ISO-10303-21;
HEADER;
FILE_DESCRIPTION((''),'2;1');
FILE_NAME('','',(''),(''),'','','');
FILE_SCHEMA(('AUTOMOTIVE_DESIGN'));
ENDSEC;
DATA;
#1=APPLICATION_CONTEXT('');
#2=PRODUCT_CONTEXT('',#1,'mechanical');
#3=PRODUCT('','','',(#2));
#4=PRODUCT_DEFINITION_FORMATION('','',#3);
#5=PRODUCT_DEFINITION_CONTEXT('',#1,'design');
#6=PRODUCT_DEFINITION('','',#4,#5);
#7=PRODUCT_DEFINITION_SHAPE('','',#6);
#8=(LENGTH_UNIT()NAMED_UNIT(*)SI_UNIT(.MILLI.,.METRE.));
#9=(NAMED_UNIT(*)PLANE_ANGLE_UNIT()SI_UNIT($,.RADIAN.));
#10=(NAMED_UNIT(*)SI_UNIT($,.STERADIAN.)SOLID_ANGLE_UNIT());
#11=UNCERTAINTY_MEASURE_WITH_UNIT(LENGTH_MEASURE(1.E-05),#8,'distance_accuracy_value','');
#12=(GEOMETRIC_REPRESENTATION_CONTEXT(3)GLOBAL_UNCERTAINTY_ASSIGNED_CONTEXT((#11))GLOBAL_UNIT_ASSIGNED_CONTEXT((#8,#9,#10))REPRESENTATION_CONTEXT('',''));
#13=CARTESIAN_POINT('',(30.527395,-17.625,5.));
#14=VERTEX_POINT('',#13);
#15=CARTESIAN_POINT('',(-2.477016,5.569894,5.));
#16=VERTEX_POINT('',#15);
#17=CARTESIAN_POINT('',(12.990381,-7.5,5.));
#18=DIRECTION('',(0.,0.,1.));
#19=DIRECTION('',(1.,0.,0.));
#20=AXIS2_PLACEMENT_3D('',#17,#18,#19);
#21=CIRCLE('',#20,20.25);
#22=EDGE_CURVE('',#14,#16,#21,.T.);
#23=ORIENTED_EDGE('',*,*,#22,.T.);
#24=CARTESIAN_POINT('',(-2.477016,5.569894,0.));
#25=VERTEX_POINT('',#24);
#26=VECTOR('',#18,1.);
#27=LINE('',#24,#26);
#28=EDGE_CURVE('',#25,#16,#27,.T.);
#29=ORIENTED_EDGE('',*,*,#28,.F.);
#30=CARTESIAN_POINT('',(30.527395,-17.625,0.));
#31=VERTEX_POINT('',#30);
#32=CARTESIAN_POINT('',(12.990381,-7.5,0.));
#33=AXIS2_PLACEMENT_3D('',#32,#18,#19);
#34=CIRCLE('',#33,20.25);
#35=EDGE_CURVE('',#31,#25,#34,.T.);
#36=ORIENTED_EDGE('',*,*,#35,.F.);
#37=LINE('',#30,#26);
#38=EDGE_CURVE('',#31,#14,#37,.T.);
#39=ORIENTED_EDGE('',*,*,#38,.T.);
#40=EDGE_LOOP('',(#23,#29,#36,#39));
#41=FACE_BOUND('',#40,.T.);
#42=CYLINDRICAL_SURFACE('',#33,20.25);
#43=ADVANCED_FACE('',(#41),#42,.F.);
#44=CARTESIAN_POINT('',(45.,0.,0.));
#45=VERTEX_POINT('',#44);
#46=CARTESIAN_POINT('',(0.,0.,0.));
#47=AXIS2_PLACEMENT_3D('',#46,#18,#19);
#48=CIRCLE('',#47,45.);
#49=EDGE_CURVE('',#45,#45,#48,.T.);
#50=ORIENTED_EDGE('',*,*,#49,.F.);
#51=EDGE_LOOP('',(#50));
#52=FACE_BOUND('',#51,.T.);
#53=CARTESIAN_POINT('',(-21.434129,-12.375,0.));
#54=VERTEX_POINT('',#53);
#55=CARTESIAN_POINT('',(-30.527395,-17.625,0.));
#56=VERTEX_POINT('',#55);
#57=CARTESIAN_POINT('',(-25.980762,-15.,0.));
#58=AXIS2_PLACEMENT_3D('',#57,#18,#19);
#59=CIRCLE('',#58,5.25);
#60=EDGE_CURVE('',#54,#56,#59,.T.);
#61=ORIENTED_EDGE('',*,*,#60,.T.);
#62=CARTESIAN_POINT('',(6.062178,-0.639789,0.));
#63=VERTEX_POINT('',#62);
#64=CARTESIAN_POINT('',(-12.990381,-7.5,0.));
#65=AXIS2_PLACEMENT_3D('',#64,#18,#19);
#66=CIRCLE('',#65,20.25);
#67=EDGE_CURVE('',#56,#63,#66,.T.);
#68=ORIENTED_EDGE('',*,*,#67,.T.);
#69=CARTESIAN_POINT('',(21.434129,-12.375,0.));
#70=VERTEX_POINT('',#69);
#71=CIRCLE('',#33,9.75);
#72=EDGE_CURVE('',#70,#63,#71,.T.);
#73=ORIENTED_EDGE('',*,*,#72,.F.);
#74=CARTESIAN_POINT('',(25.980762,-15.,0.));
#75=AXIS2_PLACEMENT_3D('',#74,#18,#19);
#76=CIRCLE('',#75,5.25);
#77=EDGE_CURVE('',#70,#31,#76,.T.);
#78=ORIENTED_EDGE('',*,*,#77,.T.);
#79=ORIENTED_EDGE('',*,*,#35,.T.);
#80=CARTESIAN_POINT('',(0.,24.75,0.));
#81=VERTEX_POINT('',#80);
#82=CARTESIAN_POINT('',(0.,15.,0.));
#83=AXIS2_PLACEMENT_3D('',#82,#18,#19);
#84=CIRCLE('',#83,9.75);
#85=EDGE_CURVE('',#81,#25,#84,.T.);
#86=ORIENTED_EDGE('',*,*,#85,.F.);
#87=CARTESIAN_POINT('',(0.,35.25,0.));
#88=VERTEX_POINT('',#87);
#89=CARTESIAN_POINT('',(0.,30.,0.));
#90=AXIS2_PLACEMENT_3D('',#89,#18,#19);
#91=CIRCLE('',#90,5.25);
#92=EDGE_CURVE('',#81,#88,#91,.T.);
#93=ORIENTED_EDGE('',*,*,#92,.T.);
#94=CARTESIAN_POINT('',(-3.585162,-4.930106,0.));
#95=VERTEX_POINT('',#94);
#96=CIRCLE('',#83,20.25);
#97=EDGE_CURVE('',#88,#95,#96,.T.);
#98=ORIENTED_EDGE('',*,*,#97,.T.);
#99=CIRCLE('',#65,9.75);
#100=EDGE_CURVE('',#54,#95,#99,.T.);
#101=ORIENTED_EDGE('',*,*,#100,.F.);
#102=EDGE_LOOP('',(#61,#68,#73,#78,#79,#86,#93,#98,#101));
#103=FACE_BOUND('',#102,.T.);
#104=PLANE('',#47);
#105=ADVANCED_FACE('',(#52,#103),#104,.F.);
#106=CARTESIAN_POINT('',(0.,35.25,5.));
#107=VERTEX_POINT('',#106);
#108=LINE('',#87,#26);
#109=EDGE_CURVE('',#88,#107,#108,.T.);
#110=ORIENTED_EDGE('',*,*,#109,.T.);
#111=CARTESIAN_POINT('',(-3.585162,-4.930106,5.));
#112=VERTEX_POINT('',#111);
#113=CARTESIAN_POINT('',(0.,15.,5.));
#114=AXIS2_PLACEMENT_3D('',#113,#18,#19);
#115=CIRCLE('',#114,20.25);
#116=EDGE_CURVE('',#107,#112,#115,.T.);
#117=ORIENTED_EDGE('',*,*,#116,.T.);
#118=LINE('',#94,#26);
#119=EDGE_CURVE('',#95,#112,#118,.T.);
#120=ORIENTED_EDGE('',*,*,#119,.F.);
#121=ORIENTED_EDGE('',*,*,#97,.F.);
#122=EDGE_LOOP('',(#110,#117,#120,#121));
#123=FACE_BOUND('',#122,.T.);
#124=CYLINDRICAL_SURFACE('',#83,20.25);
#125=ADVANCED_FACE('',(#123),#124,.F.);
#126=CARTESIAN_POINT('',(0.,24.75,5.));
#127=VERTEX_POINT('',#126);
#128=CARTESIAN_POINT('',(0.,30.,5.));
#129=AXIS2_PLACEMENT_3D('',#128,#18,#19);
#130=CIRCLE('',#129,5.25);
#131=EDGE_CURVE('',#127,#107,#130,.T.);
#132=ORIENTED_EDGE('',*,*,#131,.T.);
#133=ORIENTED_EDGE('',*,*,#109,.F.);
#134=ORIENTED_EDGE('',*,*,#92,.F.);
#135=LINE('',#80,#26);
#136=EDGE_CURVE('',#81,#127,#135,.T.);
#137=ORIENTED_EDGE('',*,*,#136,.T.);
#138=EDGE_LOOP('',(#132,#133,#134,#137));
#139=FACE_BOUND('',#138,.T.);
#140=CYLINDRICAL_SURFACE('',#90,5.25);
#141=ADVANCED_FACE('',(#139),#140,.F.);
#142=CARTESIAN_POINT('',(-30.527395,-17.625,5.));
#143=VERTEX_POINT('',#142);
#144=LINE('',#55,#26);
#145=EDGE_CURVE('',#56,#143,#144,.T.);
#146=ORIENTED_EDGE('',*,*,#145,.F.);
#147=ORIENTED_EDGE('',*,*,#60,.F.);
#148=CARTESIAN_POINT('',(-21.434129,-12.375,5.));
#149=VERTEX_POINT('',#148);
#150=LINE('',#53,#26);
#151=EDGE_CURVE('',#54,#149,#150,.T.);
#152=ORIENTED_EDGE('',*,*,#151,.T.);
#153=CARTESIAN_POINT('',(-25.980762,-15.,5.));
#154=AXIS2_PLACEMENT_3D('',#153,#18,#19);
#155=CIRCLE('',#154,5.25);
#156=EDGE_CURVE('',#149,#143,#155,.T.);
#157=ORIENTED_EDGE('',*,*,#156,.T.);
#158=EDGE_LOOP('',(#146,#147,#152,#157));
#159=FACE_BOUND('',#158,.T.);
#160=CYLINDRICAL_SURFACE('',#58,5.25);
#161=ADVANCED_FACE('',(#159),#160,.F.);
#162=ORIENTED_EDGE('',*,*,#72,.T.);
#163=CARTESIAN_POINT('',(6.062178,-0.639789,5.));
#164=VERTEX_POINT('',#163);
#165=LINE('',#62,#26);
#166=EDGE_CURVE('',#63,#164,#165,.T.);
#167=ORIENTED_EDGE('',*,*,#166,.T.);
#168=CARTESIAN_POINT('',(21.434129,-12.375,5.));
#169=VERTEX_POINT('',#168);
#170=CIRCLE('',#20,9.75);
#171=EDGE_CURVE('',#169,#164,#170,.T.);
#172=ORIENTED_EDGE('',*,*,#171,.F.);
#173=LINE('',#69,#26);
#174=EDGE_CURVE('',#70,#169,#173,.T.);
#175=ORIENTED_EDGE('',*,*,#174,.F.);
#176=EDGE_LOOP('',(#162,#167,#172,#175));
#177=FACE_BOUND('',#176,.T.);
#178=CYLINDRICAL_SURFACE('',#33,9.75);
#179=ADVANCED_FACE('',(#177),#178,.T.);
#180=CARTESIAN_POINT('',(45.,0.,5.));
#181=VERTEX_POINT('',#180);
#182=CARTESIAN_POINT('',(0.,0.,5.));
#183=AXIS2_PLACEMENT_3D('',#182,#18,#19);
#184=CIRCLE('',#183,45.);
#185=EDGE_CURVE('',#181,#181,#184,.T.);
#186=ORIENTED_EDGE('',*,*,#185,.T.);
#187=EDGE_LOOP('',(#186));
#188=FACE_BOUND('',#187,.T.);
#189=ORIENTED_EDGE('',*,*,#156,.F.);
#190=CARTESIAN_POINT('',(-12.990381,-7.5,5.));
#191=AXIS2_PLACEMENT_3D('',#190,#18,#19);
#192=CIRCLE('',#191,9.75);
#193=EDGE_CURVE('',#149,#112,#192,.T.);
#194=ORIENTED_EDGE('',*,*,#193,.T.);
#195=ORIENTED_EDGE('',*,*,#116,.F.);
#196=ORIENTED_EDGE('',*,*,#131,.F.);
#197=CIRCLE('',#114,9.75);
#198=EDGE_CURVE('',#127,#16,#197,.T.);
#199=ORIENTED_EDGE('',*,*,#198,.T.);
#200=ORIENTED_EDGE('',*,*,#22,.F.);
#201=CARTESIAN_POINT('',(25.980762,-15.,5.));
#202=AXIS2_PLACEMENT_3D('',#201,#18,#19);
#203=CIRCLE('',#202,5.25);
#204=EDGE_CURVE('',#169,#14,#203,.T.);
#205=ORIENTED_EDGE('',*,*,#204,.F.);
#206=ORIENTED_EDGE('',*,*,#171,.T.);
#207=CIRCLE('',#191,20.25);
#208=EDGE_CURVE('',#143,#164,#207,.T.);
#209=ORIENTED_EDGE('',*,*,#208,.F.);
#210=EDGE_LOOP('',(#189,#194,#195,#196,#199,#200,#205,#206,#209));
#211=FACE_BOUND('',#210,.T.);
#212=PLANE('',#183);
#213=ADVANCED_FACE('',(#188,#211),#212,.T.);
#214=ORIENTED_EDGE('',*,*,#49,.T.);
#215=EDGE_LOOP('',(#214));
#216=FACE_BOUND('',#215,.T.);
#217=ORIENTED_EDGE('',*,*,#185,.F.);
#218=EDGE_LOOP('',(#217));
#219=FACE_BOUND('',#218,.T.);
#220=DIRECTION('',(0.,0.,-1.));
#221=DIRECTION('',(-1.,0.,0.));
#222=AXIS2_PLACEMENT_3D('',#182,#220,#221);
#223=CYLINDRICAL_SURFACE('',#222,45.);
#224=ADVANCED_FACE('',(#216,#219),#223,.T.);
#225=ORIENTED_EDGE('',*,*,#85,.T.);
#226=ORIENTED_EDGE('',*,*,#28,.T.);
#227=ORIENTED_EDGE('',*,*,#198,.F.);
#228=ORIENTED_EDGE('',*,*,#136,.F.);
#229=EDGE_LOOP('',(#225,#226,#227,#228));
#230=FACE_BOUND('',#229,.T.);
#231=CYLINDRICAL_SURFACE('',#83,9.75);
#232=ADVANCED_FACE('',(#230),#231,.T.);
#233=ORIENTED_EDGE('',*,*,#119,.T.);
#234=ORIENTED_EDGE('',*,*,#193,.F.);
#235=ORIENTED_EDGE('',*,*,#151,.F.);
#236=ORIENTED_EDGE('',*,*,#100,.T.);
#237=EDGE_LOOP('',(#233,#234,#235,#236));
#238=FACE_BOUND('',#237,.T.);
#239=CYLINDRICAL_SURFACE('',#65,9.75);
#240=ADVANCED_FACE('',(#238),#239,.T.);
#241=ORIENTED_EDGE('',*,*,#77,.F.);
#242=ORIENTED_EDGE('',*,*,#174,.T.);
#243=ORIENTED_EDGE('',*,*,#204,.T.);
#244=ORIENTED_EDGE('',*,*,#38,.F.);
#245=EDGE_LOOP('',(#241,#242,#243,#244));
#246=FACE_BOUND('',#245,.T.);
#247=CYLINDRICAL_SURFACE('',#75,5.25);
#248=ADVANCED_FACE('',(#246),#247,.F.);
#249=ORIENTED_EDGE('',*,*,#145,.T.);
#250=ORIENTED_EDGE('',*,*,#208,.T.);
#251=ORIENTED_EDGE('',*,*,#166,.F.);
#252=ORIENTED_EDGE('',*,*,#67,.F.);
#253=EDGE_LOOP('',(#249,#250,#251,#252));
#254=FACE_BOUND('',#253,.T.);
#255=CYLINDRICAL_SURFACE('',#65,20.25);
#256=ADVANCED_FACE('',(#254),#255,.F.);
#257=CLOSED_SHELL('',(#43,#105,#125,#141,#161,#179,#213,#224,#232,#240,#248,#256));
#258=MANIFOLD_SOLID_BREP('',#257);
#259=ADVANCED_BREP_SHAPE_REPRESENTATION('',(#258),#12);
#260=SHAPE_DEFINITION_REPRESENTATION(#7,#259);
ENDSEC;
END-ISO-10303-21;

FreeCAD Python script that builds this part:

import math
import FreeCAD as App
import Part
import Sketcher
from FreeCAD import Vector
Q = App.Units.Quantity

doc = App.newDocument("Part")
params = doc.addObject("Spreadsheet::Sheet", "Params")
for row, (alias, value) in enumerate([
    ("sketch1_diameter", "90 mm"),
    ("pad1_length", "5 mm"),
    ("sketch2_radius", "20.25 mm"),
    ("sketch2_radius2", "9.75 mm"),
    ("pocket1_length", "5 mm"),
], start=1):
    params.set(f"A{row}", alias)
    params.set(f"B{row}", "=" + value)
    params.setAlias(f"B{row}", alias)

body = doc.addObject("PartDesign::Body", "Body")

# Sketch on XY plane
sketch1 = body.newObject("Sketcher::SketchObject", "Sketch")
sketch1.AttachmentSupport = (doc.getObject("XY_Plane"), [""])
sketch1.MapMode = "FlatFace"
sketch1.addGeometry(Part.Circle(Vector(0, 0, 0), Vector(0, 0, 1), 45), False)
sketch1.addConstraint(Sketcher.Constraint("Coincident", 0, 3, -1, 1))
sketch1.addConstraint(Sketcher.Constraint("Diameter", 0, Q("90 mm")))
sketch1.setExpression("Constraints[1]", "Params.sketch1_diameter")
pad1 = body.newObject("PartDesign::Pad", "Pad")
pad1.Profile = sketch1
pad1.setExpression("Length", "Params.pad1_length")

# Sketch on XY plane
sketch2 = body.newObject("Sketcher::SketchObject", "Sketch001")
sketch2.AttachmentSupport = (doc.getObject("XY_Plane"), [""])
sketch2.MapMode = "FlatFace"
sketch2.AttachmentOffset = App.Placement(Vector(0, 0, 5), App.Rotation())
sketch2.addGeometry(Part.ArcOfCircle(Part.Circle(Vector(-13, -8, 0), Vector(0, 0, 1), 20), math.radians(-150), math.radians(20)), False)
sketch2.addGeometry(Part.ArcOfCircle(Part.Circle(Vector(13, -8, 0), Vector(0, 0, 1), 10), math.radians(-30), math.radians(135)), False)
sketch2.addGeometry(Part.ArcOfCircle(Part.Circle(Vector(26, -15, 0), Vector(0, 0, 1), 5), math.radians(150), math.radians(330)), False)
sketch2.addGeometry(Part.ArcOfCircle(Part.Circle(Vector(13, -8, 0), Vector(0, 0, 1), 20), math.radians(-30), math.radians(140)), False)
sketch2.addGeometry(Part.ArcOfCircle(Part.Circle(Vector(0, 15, 0), Vector(0, 0, 1), 10), math.radians(90), math.radians(255)), False)
sketch2.addGeometry(Part.ArcOfCircle(Part.Circle(Vector(0, 30, 0), Vector(0, 0, 1), 5), math.radians(-90), math.radians(90)), False)
sketch2.addGeometry(Part.ArcOfCircle(Part.Circle(Vector(0, 15, 0), Vector(0, 0, 1), 20), math.radians(90), math.radians(260)), False)
sketch2.addGeometry(Part.ArcOfCircle(Part.Circle(Vector(-13, -8, 0), Vector(0, 0, 1), 10), math.radians(-150), math.radians(15)), False)
sketch2.addGeometry(Part.ArcOfCircle(Part.Circle(Vector(-26, -15, 0), Vector(0, 0, 1), 5), math.radians(30), math.radians(210)), False)
sketch2.addConstraint(Sketcher.Constraint("Coincident", 0, 2, 1, 2))
sketch2.addConstraint(Sketcher.Constraint("Tangent", 1, 1, 2, 1))
sketch2.addConstraint(Sketcher.Constraint("Tangent", 2, 2, 3, 1))
sketch2.addConstraint(Sketcher.Constraint("Coincident", 3, 2, 4, 2))
sketch2.addConstraint(Sketcher.Constraint("Tangent", 4, 1, 5, 1))
sketch2.addConstraint(Sketcher.Constraint("Tangent", 5, 2, 6, 1))
sketch2.addConstraint(Sketcher.Constraint("Coincident", 6, 2, 7, 2))
sketch2.addConstraint(Sketcher.Constraint("Tangent", 7, 1, 8, 1))
sketch2.addConstraint(Sketcher.Constraint("Tangent", 8, 2, 0, 1))
sketch2.addConstraint(Sketcher.Constraint("Coincident", 3, 3, 1, 3))
sketch2.addConstraint(Sketcher.Constraint("Coincident", 6, 3, 4, 3))
sketch2.addConstraint(Sketcher.Constraint("Coincident", 7, 3, 0, 3))
sketch2.addConstraint(Sketcher.Constraint("Equal", 0, 3))
sketch2.addConstraint(Sketcher.Constraint("Equal", 1, 4))
sketch2.addConstraint(Sketcher.Constraint("Equal", 2, 5))
sketch2.addConstraint(Sketcher.Constraint("Equal", 4, 7))
sketch2.addConstraint(Sketcher.Constraint("Symmetric", 0, 3, 1, 3, -2))
sketch2.addConstraint(Sketcher.Constraint("PointOnObject", 4, 3, -2))
sketch2.addConstraint(Sketcher.Constraint("PointOnObject", 5, 3, -2))
sketch2.addConstraint(Sketcher.Constraint("Horizontal", 2, 3, 8, 3))
sketch2.addConstraint(Sketcher.Constraint("Radius", 0, Q("20.25 mm")))
sketch2.addConstraint(Sketcher.Constraint("Radius", 1, Q("9.75 mm")))
sketch2.addConstraint(Sketcher.Constraint("DistanceY", 2, 3, -1, 1, Q("15 mm")))
sketch2.addConstraint(Sketcher.Constraint("DistanceY", -1, 1, 4, 3, Q("15 mm")))
sketch2.addConstraint(Sketcher.Constraint("DistanceY", 0, 3, -1, 1, Q("7.5 mm")))
sketch2.addConstraint(Sketcher.Constraint("DistanceY", 6, 2, 3, 2, Q("10.5 mm")))
sketch2.setExpression("Constraints[20]", "Params.sketch2_radius")
sketch2.setExpression("Constraints[21]", "Params.sketch2_radius2")
pocket1 = body.newObject("PartDesign::Pocket", "Pocket")
pocket1.Profile = sketch2
pocket1.setExpression("Length", "Params.pocket1_length")

doc.recompute()
